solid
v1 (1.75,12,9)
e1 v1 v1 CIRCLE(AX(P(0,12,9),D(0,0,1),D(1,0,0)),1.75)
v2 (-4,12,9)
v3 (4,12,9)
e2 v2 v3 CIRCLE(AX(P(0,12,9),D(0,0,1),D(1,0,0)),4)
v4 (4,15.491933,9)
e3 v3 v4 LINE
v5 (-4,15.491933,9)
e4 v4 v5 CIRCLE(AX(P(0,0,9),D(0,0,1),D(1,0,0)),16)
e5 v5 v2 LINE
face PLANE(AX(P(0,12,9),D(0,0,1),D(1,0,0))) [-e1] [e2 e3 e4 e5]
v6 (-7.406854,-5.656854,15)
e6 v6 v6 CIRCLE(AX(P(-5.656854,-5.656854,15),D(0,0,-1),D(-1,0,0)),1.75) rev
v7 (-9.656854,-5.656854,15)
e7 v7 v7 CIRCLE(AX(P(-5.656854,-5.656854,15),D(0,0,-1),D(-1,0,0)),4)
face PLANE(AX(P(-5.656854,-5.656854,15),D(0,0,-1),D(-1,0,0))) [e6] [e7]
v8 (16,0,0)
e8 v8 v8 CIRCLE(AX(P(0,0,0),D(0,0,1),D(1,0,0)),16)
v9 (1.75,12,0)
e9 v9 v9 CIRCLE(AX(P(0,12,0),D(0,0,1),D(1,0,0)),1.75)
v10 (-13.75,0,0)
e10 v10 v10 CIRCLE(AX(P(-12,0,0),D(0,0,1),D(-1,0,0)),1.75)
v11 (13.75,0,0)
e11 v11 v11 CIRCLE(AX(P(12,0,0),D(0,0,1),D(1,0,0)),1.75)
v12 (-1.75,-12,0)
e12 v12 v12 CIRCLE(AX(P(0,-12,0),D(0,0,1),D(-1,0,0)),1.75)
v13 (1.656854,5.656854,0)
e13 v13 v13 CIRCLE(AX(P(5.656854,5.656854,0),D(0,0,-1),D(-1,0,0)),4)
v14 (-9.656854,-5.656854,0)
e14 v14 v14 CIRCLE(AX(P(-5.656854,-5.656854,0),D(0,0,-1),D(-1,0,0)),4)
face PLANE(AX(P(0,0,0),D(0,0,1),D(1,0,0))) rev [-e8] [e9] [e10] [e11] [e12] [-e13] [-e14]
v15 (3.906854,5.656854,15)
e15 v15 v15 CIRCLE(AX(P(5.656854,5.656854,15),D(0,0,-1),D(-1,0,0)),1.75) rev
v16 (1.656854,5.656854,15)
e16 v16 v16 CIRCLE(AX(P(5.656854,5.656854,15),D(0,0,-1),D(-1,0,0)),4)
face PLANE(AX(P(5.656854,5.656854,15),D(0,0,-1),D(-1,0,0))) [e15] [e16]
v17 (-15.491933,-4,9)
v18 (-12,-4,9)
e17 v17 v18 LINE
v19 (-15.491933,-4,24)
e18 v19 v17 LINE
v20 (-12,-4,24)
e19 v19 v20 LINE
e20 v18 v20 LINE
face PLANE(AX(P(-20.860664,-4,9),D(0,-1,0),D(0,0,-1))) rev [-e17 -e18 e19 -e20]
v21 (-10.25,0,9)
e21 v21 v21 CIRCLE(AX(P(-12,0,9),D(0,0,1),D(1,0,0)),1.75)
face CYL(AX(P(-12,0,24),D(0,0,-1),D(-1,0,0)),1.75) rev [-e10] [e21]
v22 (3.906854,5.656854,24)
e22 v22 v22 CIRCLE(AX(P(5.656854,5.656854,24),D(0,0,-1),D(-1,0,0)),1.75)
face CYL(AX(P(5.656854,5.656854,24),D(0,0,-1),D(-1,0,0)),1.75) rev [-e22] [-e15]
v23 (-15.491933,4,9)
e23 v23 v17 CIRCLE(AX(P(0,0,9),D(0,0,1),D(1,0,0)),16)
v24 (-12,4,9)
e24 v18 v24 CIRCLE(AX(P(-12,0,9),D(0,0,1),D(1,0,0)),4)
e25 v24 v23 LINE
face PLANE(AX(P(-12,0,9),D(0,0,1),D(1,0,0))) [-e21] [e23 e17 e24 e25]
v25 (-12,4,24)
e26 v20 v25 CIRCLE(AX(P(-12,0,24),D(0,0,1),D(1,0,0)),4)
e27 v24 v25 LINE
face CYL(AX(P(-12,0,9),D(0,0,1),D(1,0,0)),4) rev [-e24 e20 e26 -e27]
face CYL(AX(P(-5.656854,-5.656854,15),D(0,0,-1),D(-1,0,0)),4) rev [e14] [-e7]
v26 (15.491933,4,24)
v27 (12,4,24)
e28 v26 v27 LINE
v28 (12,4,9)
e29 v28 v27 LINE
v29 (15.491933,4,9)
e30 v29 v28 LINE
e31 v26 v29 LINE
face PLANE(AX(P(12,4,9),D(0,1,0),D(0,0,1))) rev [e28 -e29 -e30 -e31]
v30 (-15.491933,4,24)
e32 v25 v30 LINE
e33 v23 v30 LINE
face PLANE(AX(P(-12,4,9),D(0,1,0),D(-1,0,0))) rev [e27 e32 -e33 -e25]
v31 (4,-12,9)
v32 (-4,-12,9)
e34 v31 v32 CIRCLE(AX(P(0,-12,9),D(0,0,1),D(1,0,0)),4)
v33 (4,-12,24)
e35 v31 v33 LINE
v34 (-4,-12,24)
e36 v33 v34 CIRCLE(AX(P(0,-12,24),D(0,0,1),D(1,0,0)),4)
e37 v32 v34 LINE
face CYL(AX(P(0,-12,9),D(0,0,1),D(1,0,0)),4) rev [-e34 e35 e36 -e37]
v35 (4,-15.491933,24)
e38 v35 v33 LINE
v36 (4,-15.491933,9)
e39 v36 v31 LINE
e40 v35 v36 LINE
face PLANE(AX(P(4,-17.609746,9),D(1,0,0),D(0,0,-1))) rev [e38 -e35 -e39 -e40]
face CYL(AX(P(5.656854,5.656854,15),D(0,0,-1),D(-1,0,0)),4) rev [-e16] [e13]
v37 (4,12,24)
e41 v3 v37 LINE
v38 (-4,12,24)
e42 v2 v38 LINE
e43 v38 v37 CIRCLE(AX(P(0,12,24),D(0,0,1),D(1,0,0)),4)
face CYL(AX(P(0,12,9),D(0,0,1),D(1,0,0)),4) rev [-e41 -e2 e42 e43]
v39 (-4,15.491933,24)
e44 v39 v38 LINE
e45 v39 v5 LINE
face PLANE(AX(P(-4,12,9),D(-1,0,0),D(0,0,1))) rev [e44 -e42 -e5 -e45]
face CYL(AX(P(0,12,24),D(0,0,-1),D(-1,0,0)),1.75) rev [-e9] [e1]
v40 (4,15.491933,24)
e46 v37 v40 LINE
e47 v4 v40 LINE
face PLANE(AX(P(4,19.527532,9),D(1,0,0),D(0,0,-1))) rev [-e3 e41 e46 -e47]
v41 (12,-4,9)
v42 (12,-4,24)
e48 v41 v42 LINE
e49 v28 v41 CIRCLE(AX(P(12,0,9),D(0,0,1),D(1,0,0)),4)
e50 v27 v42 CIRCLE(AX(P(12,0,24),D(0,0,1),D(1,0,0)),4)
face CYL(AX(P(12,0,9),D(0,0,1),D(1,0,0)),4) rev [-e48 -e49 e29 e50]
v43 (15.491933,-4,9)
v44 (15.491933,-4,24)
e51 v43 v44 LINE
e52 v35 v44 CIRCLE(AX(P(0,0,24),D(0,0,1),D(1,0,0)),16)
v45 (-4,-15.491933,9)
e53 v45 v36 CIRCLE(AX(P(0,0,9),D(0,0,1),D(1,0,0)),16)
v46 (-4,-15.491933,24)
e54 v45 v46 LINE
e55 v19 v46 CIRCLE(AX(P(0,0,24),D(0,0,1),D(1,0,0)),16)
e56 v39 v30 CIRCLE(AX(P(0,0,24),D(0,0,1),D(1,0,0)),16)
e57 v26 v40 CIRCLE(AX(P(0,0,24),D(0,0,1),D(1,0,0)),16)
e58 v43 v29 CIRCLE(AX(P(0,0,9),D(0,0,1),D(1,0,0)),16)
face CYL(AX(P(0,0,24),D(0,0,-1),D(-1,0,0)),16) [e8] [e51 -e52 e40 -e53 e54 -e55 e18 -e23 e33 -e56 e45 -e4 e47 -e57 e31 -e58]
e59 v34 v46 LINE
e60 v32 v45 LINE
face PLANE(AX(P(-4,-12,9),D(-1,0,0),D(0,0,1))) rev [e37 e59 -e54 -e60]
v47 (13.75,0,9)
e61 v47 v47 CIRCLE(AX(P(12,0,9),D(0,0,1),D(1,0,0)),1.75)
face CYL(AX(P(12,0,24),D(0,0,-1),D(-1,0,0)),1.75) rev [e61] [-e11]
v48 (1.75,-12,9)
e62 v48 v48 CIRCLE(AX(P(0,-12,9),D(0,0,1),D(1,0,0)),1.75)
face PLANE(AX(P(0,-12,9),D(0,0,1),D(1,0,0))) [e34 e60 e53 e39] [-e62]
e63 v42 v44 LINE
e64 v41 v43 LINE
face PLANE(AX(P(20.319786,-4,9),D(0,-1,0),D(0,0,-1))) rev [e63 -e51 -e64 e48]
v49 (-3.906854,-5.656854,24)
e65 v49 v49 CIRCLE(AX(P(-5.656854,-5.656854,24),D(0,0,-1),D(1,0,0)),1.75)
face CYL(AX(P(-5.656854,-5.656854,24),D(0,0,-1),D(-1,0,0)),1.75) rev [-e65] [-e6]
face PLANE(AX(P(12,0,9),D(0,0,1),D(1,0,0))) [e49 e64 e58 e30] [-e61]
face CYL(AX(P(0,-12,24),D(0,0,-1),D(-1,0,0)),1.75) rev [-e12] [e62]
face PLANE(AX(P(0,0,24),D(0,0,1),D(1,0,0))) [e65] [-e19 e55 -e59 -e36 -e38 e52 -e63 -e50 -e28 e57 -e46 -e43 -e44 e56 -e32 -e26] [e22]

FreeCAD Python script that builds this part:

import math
import FreeCAD as App
import Part
import Sketcher

V = App.Vector

doc = App.newDocument("Part")
params = doc.addObject("Spreadsheet::Sheet", "Params")
for row, (alias, value) in enumerate([
    ("sketch1_diameter", "32 mm"),
    ("sketch1_diameter2", "3.5 mm"),
    ("pad1_length", "24 mm"),
    ("sketch2_diameter", "3.5 mm"),
    ("sketch3_diameter", "8 mm"),
    ("pocket2_length", "15 mm"),
    ("sketch4_radius", "4 mm"),
    ("pocket3_length", "15 mm"),
], start=1):
    params.set(f"A{row}", alias)
    params.set(f"B{row}", "=" + value)
    params.setAlias(f"B{row}", alias)

body = doc.addObject("PartDesign::Body", "Body")

sketch1 = body.newObject("Sketcher::SketchObject", "Sketch")
sketch1.AttachmentSupport = (doc.getObject("XY_Plane"), [""])
sketch1.MapMode = "FlatFace"
sketch1.addGeometry([
    Part.Circle(V(0, 0, 0), V(0, 0, 1), 16),
    Part.Circle(V(0, -12, 0), V(0, 0, 1), 1.8),
    Part.Circle(V(-12, 0, 0), V(0, 0, 1), 1.8),
    Part.Circle(V(12, 0, 0), V(0, 0, 1), 1.8),
    Part.Circle(V(0, 12, 0), V(0, 0, 1), 1.8),
], False)
sketch1.addConstraint([
    Sketcher.Constraint("Coincident", 0, 3, -1, 1),
    Sketcher.Constraint("Equal", 1, 2),
    Sketcher.Constraint("Equal", 2, 3),
    Sketcher.Constraint("Equal", 3, 4),
    Sketcher.Constraint("Symmetric", 2, 3, 3, 3, -1, 1),
    Sketcher.Constraint("Symmetric", 1, 3, 4, 3, -1, 1),
    Sketcher.Constraint("PointOnObject", 1, 3, -2),
    Sketcher.Constraint("PointOnObject", 2, 3, -1),
    Sketcher.Constraint("Diameter", 0, 32.0),
    Sketcher.Constraint("Diameter", 1, 3.5),
    Sketcher.Constraint("DistanceY", 1, 3, -1, 1, 12.0),
    Sketcher.Constraint("DistanceX", 2, 3, -1, 1, 12.0),
])
sketch1.setExpression("Constraints[8]", "Params.sketch1_diameter")
sketch1.setExpression("Constraints[9]", "Params.sketch1_diameter2")
pad1 = body.newObject("PartDesign::Pad", "Pad")
pad1.Profile = sketch1
pad1.setExpression("Length", "Params.pad1_length")

sketch2 = body.newObject("Sketcher::SketchObject", "Sketch001")
sketch2.AttachmentSupport = (doc.getObject("XY_Plane"), [""])
sketch2.MapMode = "FlatFace"
sketch2.addGeometry([
    Part.Circle(V(5.7, 5.7, 0), V(0, 0, 1), 1.8),
    Part.Circle(V(-5.7, -5.7, 0), V(0, 0, 1), 1.8),
], False)
sketch2.addConstraint([
    Sketcher.Constraint("Equal", 0, 1),
    Sketcher.Constraint("Symmetric", 0, 3, 1, 3, -1, 1),
    Sketcher.Constraint("Diameter", 0, 3.5),
    Sketcher.Constraint("DistanceX", 1, 3, 0, 3, 11.313708),
    Sketcher.Constraint("DistanceY", 1, 3, 0, 3, 11.313708),
])
sketch2.setExpression("Constraints[2]", "Params.sketch2_diameter")
pocket1 = body.newObject("PartDesign::Pocket", "Pocket")
pocket1.Profile = sketch2
pocket1.Type = "ThroughAll"
pocket1.Reversed = True

sketch3 = body.newObject("Sketcher::SketchObject", "Sketch002")
sketch3.AttachmentSupport = (doc.getObject("XY_Plane"), [""])
sketch3.MapMode = "FlatFace"
sketch3.addGeometry([
    Part.Circle(V(5.7, 5.7, 0), V(0, 0, 1), 4),
    Part.Circle(V(-5.7, -5.7, 0), V(0, 0, 1), 4),
], False)
sketch3.addConstraint([
    Sketcher.Constraint("Equal", 0, 1),
    Sketcher.Constraint("Symmetric", 0, 3, 1, 3, -1, 1),
    Sketcher.Constraint("Diameter", 0, 8.0),
    Sketcher.Constraint("DistanceX", 1, 3, 0, 3, 11.313708),
    Sketcher.Constraint("DistanceY", 1, 3, 0, 3, 11.313708),
])
sketch3.setExpression("Constraints[2]", "Params.sketch3_diameter")
pocket2 = body.newObject("PartDesign::Pocket", "Pocket001")
pocket2.Profile = sketch3
pocket2.setExpression("Length", "Params.pocket2_length")
pocket2.Reversed = True

sketch4 = body.newObject("Sketcher::SketchObject", "Sketch003")
sketch4.AttachmentSupport = (doc.getObject("XY_Plane"), [""])
sketch4.MapMode = "FlatFace"
sketch4.AttachmentOffset = App.Placement(V(0, 0, 24), App.Rotation())
sketch4.addGeometry([
    Part.LineSegment(V(-4, 19.5, 0), V(-4, 12, 0)),
    Part.ArcOfCircle(Part.Circle(V(0, 12, 0), V(0, 0, 1), 4), math.radians(180), math.radians(360)),
    Part.LineSegment(V(4, 12, 0), V(4, 19.5, 0)),
    Part.LineSegment(V(4, 19.5, 0), V(-4, 19.5, 0)),
    Part.LineSegment(V(20.3, 4, 0), V(12, 4, 0)),
    Part.ArcOfCircle(Part.Circle(V(12, 0, 0), V(0, 0, 1), 4), math.radians(90), math.radians(270)),
    Part.LineSegment(V(12, -4, 0), V(20.3, -4, 0)),
    Part.LineSegment(V(20.3, -4, 0), V(20.3, 4, 0)),
    Part.LineSegment(V(-12, 4, 0), V(-20.9, 4, 0)),
    Part.LineSegment(V(-20.9, 4, 0), V(-20.9, -4, 0)),
    Part.LineSegment(V(-20.9, -4, 0), V(-12, -4, 0)),
    Part.ArcOfCircle(Part.Circle(V(-12, 0, 0), V(0, 0, 1), 4), math.radians(-90), math.radians(90)),
    Part.LineSegment(V(-4, -12, 0), V(-4, -17.6, 0)),
    Part.LineSegment(V(-4, -17.6, 0), V(4, -17.6, 0)),
    Part.LineSegment(V(4, -17.6, 0), V(4, -12, 0)),
    Part.ArcOfCircle(Part.Circle(V(0, -12, 0), V(0, 0, 1), 4), math.radians(0), math.radians(180)),
], False)
sketch4.addConstraint([
    Sketcher.Constraint("Tangent", 0, 2, 1, 1),
    Sketcher.Constraint("Tangent", 1, 2, 2, 1),
    Sketcher.Constraint("Coincident", 2, 2, 3, 1),
    Sketcher.Constraint("Coincident", 3, 2, 0, 1),
    Sketcher.Constraint("Tangent", 4, 2, 5, 1),
    Sketcher.Constraint("Tangent", 5, 2, 6, 1),
    Sketcher.Constraint("Coincident", 6, 2, 7, 1),
    Sketcher.Constraint("Coincident", 7, 2, 4, 1),
    Sketcher.Constraint("Coincident", 8, 2, 9, 1),
    Sketcher.Constraint("Coincident", 9, 2, 10, 1),
    Sketcher.Constraint("Tangent", 10, 2, 11, 1),
    Sketcher.Constraint("Tangent", 11, 2, 8, 1),
    Sketcher.Constraint("Coincident", 12, 2, 13, 1),
    Sketcher.Constraint("Coincident", 13, 2, 14, 1),
    Sketcher.Constraint("Tangent", 14, 2, 15, 1),
    Sketcher.Constraint("Tangent", 15, 2, 12, 1),
    Sketcher.Constraint("Vertical", 0),
    Sketcher.Constraint("Vertical", 2),
    Sketcher.Constraint("Horizontal", 3),
    Sketcher.Constraint("Horizontal", 4),
    Sketcher.Constraint("Horizontal", 6),
    Sketcher.Constraint("Vertical", 7),
    Sketcher.Constraint("Horizontal", 8),
    Sketcher.Constraint("Vertical", 9),
    Sketcher.Constraint("Horizontal", 10),
    Sketcher.Constraint("Vertical", 12),
    Sketcher.Constraint("Horizontal", 13),
    Sketcher.Constraint("Vertical", 14),
    Sketcher.Constraint("Equal", 1, 5),
    Sketcher.Constraint("Equal", 5, 11),
    Sketcher.Constraint("Equal", 11, 15),
    Sketcher.Constraint("Symmetric", 5, 3, 11, 3, -1, 1),
    Sketcher.Constraint("Symmetric", 1, 3, 15, 3, -1, 1),
    Sketcher.Constraint("PointOnObject", 1, 3, -2),
    Sketcher.Constraint("PointOnObject", 5, 3, -1),
    Sketcher.Constraint("Radius", 1, 4.0),
    Sketcher.Constraint("DistanceY", -1, 1, 1, 3, 12.0),
    Sketcher.Constraint("DistanceX", -1, 1, 5, 3, 12.0),
    Sketcher.Constraint("DistanceX", 4, 2, 4, 1, 8.319786),
    Sketcher.Constraint("DistanceX", 8, 2, 8, 1, 8.860664),
    Sketcher.Constraint("DistanceY", 0, 2, 0, 1, 7.527532),
    Sketcher.Constraint("DistanceY", 12, 2, 12, 1, 5.609746),
])
sketch4.setExpression("Constraints[35]", "Params.sketch4_radius")
pocket3 = body.newObject("PartDesign::Pocket", "Pocket002")
pocket3.Profile = sketch4
pocket3.setExpression("Length", "Params.pocket3_length")

doc.recompute()
